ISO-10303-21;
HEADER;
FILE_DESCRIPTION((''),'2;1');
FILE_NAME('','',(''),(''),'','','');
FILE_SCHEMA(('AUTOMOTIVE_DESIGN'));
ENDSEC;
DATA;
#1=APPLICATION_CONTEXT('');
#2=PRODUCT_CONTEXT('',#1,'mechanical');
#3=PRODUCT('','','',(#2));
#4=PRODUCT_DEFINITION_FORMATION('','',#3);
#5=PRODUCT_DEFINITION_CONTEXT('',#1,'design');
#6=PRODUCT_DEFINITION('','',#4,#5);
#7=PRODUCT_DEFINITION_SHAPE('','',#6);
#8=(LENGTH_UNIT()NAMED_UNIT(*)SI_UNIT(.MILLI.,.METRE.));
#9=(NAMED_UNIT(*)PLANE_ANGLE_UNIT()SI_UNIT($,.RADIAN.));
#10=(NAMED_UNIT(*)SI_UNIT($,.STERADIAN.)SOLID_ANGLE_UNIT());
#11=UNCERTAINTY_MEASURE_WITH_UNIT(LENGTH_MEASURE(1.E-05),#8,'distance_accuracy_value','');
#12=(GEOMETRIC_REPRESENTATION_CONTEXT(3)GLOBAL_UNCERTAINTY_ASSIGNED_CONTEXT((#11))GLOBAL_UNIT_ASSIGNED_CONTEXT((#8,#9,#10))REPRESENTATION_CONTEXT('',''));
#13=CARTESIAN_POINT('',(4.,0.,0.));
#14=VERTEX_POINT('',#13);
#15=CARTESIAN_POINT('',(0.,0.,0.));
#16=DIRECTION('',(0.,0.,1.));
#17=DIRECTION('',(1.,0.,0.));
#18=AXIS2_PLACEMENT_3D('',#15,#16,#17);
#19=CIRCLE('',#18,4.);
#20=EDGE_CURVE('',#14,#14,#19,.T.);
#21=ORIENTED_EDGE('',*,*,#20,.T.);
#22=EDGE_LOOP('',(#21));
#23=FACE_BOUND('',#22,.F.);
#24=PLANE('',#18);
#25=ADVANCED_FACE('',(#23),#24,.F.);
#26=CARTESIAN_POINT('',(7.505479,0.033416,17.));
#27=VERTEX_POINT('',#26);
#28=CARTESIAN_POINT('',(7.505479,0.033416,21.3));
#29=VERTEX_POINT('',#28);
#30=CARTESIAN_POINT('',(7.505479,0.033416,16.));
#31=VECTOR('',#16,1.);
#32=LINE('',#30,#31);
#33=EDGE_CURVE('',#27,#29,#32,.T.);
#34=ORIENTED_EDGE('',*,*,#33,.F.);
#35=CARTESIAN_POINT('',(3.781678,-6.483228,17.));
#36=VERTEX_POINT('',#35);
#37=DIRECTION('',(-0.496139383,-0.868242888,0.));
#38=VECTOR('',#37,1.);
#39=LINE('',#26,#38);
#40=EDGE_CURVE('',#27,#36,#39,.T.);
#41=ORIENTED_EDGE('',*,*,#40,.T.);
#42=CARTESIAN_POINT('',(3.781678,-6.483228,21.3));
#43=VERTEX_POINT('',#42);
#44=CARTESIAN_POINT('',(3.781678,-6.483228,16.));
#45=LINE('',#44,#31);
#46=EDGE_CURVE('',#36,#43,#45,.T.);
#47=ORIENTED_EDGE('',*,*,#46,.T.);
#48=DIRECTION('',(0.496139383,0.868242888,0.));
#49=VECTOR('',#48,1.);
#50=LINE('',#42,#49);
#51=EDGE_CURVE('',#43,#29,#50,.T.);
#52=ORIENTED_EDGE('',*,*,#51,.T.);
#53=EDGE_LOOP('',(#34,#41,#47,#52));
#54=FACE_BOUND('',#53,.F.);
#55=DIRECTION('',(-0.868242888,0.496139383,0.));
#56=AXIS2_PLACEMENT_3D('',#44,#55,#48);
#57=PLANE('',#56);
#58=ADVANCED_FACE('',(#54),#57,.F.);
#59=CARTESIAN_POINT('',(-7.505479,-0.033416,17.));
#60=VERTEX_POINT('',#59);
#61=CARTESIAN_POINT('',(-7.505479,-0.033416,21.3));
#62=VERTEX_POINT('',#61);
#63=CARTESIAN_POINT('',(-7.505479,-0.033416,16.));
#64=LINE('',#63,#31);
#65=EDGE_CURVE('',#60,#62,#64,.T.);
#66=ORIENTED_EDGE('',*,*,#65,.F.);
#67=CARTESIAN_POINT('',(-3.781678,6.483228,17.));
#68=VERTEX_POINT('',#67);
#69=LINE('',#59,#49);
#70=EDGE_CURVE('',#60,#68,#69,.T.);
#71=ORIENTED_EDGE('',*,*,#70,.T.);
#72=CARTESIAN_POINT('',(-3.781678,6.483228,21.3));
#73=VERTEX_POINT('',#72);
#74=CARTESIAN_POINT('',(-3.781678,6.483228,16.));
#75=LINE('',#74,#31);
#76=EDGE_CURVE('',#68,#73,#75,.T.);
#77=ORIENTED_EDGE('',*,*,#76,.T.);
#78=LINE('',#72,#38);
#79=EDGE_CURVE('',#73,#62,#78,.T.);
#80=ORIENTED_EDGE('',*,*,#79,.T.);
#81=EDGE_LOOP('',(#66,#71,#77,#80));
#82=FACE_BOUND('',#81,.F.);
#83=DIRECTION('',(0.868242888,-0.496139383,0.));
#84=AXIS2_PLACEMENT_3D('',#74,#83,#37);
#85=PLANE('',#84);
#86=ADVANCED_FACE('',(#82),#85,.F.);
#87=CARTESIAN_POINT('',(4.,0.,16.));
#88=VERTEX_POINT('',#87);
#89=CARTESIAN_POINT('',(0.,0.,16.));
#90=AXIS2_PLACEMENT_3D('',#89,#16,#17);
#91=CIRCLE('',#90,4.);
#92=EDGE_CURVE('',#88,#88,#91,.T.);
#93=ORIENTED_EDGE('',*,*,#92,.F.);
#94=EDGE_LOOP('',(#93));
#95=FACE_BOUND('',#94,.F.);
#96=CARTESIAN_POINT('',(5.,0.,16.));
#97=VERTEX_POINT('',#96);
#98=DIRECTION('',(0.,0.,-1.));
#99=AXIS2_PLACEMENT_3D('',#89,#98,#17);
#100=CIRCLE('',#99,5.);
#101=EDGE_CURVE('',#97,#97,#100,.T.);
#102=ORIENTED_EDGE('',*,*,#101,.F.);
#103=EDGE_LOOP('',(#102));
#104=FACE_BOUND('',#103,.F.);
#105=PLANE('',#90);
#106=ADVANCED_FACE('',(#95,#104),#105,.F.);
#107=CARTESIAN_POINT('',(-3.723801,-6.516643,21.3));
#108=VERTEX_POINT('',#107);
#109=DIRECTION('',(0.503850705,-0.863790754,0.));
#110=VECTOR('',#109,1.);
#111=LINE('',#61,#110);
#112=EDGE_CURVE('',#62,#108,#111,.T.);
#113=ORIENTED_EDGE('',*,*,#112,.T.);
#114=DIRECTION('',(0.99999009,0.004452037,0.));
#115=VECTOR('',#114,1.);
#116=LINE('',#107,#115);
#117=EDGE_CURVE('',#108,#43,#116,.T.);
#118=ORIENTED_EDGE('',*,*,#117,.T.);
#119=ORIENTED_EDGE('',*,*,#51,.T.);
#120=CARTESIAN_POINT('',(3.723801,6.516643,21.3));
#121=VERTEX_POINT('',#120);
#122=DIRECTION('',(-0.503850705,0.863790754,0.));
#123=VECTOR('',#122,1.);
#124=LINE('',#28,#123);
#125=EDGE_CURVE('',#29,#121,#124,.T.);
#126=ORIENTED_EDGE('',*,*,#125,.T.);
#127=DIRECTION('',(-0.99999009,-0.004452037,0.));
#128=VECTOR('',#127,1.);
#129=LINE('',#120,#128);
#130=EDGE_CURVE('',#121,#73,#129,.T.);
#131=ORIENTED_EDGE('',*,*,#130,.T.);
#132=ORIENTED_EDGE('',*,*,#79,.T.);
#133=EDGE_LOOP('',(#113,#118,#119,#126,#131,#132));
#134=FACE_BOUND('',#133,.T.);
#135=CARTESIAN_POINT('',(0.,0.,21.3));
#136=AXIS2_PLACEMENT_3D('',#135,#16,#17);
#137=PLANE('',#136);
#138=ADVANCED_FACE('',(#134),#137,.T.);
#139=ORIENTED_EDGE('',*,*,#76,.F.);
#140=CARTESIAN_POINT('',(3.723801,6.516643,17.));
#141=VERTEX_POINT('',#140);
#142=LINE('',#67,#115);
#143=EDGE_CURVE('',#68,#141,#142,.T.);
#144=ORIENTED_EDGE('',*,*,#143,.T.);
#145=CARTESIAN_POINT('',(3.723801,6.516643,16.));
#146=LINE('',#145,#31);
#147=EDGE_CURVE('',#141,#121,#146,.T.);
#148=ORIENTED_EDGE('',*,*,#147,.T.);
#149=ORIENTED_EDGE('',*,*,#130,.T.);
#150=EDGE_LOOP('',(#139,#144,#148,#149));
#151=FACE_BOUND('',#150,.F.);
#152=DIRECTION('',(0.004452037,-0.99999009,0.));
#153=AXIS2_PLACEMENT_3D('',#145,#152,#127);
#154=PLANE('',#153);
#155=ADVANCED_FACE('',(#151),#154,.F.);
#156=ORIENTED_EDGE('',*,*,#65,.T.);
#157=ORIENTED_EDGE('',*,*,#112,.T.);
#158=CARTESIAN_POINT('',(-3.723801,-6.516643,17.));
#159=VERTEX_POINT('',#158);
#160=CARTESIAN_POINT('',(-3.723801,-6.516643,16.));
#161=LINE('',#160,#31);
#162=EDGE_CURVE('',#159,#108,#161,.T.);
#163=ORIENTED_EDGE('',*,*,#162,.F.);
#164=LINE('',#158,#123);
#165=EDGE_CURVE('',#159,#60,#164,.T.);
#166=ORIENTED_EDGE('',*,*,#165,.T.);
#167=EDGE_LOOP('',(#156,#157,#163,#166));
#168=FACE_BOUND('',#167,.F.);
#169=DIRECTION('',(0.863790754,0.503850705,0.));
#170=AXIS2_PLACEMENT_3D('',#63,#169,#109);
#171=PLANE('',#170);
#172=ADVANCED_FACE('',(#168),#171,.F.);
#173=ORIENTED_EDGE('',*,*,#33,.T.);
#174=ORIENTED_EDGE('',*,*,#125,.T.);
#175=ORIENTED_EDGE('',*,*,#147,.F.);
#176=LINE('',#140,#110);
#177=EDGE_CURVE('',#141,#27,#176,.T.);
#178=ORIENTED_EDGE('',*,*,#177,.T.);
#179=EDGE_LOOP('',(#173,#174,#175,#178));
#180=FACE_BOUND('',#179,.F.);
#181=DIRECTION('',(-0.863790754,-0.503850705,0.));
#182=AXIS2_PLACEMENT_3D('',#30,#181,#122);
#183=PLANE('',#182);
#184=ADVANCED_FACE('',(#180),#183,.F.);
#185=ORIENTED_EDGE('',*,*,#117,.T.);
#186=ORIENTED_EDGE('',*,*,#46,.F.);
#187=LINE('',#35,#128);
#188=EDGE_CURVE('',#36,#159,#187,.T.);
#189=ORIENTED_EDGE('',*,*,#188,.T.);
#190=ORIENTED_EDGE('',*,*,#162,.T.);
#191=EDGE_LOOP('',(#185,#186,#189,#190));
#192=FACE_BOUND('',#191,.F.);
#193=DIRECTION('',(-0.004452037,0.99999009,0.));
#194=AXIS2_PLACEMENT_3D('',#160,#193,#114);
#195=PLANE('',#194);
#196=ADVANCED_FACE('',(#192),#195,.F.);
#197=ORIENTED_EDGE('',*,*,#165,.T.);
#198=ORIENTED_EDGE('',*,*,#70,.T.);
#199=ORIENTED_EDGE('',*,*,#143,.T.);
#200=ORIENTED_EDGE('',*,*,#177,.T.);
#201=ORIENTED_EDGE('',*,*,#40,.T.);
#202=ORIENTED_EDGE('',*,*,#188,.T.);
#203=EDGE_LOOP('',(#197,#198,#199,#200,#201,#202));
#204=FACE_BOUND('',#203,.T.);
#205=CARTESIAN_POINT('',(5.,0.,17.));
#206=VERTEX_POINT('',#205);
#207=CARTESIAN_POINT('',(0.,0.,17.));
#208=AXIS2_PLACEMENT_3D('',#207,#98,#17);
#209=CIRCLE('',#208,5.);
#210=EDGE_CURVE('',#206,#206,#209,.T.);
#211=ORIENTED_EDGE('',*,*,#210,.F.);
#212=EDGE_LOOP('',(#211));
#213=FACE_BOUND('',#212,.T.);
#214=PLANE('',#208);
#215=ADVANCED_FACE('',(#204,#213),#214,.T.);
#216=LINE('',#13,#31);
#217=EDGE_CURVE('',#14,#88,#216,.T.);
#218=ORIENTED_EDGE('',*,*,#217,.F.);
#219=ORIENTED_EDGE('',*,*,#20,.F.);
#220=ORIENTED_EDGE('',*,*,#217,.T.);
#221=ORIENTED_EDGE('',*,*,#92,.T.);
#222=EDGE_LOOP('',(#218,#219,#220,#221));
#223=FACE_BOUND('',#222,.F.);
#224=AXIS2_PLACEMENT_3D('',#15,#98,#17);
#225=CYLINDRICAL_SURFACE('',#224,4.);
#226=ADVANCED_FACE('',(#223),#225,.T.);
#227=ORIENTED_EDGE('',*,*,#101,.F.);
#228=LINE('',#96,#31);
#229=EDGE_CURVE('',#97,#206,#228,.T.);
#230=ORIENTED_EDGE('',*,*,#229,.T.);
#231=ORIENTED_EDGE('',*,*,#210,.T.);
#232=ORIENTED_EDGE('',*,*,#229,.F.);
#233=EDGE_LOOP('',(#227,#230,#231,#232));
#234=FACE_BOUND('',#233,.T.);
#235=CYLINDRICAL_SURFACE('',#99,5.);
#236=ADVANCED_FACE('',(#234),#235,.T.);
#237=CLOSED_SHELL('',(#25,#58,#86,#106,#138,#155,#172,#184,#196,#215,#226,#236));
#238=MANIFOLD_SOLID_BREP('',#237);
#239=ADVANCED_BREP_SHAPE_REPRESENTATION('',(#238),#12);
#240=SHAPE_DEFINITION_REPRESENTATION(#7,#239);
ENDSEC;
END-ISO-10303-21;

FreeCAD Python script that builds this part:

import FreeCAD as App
import Part
import Sketcher
from FreeCAD import Vector
Q = App.Units.Quantity


def add_polygon(sketch, points):
    """Adds a closed chain of lines whose ends are joined by coincident constraints."""
    first, n = sketch.GeometryCount, len(points)
    for a, b in zip(points, points[1:] + points[:1]):
        sketch.addGeometry(Part.LineSegment(App.Vector(*a, 0), App.Vector(*b, 0)), False)
    for i in range(n):
        sketch.addConstraint(Sketcher.Constraint("Coincident", first + i, 2, first + (i + 1) % n, 1))

doc = App.newDocument("Part")
params = doc.addObject("Spreadsheet::Sheet", "Params")
for row, (alias, value) in enumerate([
    ("sketch1_diameter", "8 mm"),
    ("pad1_length", "16 mm"),
    ("pad2_length", "5.3 mm"),
    ("sketch3_diameter", "10 mm"),
    ("pocket1_length", "1 mm"),
], start=1):
    params.set(f"A{row}", alias)
    params.set(f"B{row}", "=" + value)
    params.setAlias(f"B{row}", alias)

body = doc.addObject("PartDesign::Body", "Body")

sketch1 = body.newObject("Sketcher::SketchObject", "Sketch")
sketch1.AttachmentSupport = (doc.getObject("XY_Plane"), [""])
sketch1.MapMode = "FlatFace"
sketch1.addGeometry(Part.Circle(Vector(0, 0, 0), Vector(0, 0, 1), 4), False)
sketch1.addConstraint([
    Sketcher.Constraint("Coincident", 0, 3, -1, 1),
    Sketcher.Constraint("Diameter", 0, Q("8 mm")),
])
sketch1.setExpression("Constraints[1]", "Params.sketch1_diameter")
pad1 = body.newObject("PartDesign::Pad", "Pad")
pad1.Profile = sketch1
pad1.setExpression("Length", "Params.pad1_length")

sketch2 = body.newObject("Sketcher::SketchObject", "Sketch001")
sketch2.AttachmentSupport = (doc.getObject("XY_Plane"), [""])
sketch2.MapMode = "FlatFace"
sketch2.AttachmentOffset = App.Placement(Vector(0, 0, 16), App.Rotation())
add_polygon(sketch2, [(4, -6), (8, 0), (4, 7), (-4, 6), (-8, 0), (-4, -7)])
sketch2.addConstraint([
    Sketcher.Constraint("Symmetric", 0, 2, 3, 2, -1, 1),
    Sketcher.Constraint("Symmetric", 1, 2, 4, 2, -1, 1),
    Sketcher.Constraint("Symmetric", 2, 2, 5, 2, -1, 1),
    Sketcher.Constraint("Equal", 0, 1),
    Sketcher.Constraint("Equal", 1, 2),
    Sketcher.Constraint("DistanceX", -1, 1, 1, 2, Q("3.723801 mm")),
    Sketcher.Constraint("DistanceX", 3, 2, 2, 2, Q("3.723801 mm")),
    Sketcher.Constraint("DistanceX", -1, 1, 0, 2, Q("7.505479 mm")),
    Sketcher.Constraint("DistanceY", -1, 1, 2, 2, Q("6.483228 mm")),
])
pad2 = body.newObject("PartDesign::Pad", "Pad001")
pad2.Profile = sketch2
pad2.setExpression("Length", "Params.pad2_length")

sketch3 = body.newObject("Sketcher::SketchObject", "Sketch002")
sketch3.AttachmentSupport = (doc.getObject("XY_Plane"), [""])
sketch3.MapMode = "FlatFace"
sketch3.AttachmentOffset = App.Placement(Vector(0, 0, 16), App.Rotation())
add_polygon(sketch3, [(4, 7), (8, 0), (4, -6), (-4, -7), (-8, 0), (-4, 6)])
sketch3.addGeometry(Part.Circle(Vector(0, 0, 0), Vector(0, 0, 1), 5), False)
sketch3.addConstraint([
    Sketcher.Constraint("Coincident", 6, 3, -1, 1),
    Sketcher.Constraint("Symmetric", 0, 2, 3, 2, -1, 1),
    Sketcher.Constraint("Symmetric", 1, 2, 4, 2, -1, 1),
    Sketcher.Constraint("Symmetric", 2, 2, 5, 2, -1, 1),
    Sketcher.Constraint("Equal", 0, 1),
    Sketcher.Constraint("Equal", 1, 2),
    Sketcher.Constraint("Diameter", 6, Q("10 mm")),
    Sketcher.Constraint("DistanceX", 2, 2, -1, 1, Q("3.723801 mm")),
    Sketcher.Constraint("DistanceX", 1, 2, 0, 2, Q("3.723801 mm")),
    Sketcher.Constraint("DistanceX", -1, 1, 0, 2, Q("7.505479 mm")),
    Sketcher.Constraint("DistanceY", 1, 2, -1, 1, Q("6.483228 mm")),
])
sketch3.setExpression("Constraints[12]", "Params.sketch3_diameter")
pocket1 = body.newObject("PartDesign::Pocket", "Pocket")
pocket1.Profile = sketch3
pocket1.setExpression("Length", "Params.pocket1_length")
pocket1.Reversed = True

doc.recompute()
